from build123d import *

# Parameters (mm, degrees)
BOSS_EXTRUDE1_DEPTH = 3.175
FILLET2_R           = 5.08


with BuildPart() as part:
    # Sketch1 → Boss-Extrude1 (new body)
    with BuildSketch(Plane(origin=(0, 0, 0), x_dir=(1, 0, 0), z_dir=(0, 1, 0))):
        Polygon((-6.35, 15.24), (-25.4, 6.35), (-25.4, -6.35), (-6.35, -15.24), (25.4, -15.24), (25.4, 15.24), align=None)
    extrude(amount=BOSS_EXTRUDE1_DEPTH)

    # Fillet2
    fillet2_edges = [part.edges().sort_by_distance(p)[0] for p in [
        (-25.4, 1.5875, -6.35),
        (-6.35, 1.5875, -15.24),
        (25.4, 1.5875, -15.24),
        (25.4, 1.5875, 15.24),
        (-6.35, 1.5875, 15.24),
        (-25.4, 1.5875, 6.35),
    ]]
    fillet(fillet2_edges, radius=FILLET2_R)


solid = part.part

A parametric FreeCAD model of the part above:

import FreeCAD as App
import Part
import Sketcher
Q = App.Units.Quantity


def edges_at(feature, points):
    """Names of the edges that pass closest to the given points."""
    edges = feature.Shape.Edges
    near = lambda p: min(range(len(edges)), key=lambda i: edges[i].distToShape(Part.Vertex(*p))[0])
    return sorted({f"Edge{near(p) + 1}" for p in points})


def add_polygon(sketch, points):
    """Adds a closed chain of lines whose ends are joined by coincident constraints."""
    first, n = sketch.GeometryCount, len(points)
    for a, b in zip(points, points[1:] + points[:1]):
        sketch.addGeometry(Part.LineSegment(App.Vector(*a, 0), App.Vector(*b, 0)), False)
    for i in range(n):
        sketch.addConstraint(Sketcher.Constraint("Coincident", first + i, 2, first + (i + 1) % n, 1))

doc = App.newDocument("Part")
body = doc.addObject("PartDesign::Body", "Body")

sketch1 = doc.addObject("Sketcher::SketchObject", "Sketch")
body.addObject(sketch1)
sketch1.AttachmentSupport = (doc.XZ_Plane, [""])
sketch1.MapMode = "FlatFace"
add_polygon(sketch1, [(-6, -15), (-25, -6), (-25, 6), (-6, 15), (25, 15), (25, -15)])
sketch1.addConstraint([
    Sketcher.Constraint("Vertical", 1),
    Sketcher.Constraint("Horizontal", 3),
    Sketcher.Constraint("Vertical", 4),
    Sketcher.Constraint("Horizontal", 5),
    Sketcher.Constraint("Symmetric", 2, 2, 5, 2, -1),
    Sketcher.Constraint("Equal", 0, 2),
    Sketcher.Constraint("DistanceY", 1, 1, 1, 2, Q("0.5 in")),
    Sketcher.Constraint("DistanceY", 4, 2, 4, 1, Q("1.2 in")),
    Sketcher.Constraint("DistanceX", 0, 2, -1, 1, Q("1 in")),
    Sketcher.Constraint("DistanceX", -1, 1, 3, 2, Q("1 in")),
    Sketcher.Constraint("DistanceX", 3, 1, 3, 2, Q("1.25 in")),
])
pad1 = doc.addObject("PartDesign::Pad", "Pad")
body.addObject(pad1)
pad1.Profile = sketch1
pad1.Length = Q("0.125 in")
pad1.Reversed = True
doc.recompute()

fillet = doc.addObject("PartDesign::Fillet", "Fillet")
body.addObject(fillet)
fillet.Base = (pad1, edges_at(pad1, [
    (-25.4, 1.587, -6.35),
    (-6.35, 1.587, -15.24),
    (25.4, 1.587, -15.24),
    (25.4, 1.587, 15.24),
    (-6.35, 1.587, 15.24),
    (-25.4, 1.587, 6.35),
]))
fillet.Radius = Q("0.2 in")

doc.recompute()
